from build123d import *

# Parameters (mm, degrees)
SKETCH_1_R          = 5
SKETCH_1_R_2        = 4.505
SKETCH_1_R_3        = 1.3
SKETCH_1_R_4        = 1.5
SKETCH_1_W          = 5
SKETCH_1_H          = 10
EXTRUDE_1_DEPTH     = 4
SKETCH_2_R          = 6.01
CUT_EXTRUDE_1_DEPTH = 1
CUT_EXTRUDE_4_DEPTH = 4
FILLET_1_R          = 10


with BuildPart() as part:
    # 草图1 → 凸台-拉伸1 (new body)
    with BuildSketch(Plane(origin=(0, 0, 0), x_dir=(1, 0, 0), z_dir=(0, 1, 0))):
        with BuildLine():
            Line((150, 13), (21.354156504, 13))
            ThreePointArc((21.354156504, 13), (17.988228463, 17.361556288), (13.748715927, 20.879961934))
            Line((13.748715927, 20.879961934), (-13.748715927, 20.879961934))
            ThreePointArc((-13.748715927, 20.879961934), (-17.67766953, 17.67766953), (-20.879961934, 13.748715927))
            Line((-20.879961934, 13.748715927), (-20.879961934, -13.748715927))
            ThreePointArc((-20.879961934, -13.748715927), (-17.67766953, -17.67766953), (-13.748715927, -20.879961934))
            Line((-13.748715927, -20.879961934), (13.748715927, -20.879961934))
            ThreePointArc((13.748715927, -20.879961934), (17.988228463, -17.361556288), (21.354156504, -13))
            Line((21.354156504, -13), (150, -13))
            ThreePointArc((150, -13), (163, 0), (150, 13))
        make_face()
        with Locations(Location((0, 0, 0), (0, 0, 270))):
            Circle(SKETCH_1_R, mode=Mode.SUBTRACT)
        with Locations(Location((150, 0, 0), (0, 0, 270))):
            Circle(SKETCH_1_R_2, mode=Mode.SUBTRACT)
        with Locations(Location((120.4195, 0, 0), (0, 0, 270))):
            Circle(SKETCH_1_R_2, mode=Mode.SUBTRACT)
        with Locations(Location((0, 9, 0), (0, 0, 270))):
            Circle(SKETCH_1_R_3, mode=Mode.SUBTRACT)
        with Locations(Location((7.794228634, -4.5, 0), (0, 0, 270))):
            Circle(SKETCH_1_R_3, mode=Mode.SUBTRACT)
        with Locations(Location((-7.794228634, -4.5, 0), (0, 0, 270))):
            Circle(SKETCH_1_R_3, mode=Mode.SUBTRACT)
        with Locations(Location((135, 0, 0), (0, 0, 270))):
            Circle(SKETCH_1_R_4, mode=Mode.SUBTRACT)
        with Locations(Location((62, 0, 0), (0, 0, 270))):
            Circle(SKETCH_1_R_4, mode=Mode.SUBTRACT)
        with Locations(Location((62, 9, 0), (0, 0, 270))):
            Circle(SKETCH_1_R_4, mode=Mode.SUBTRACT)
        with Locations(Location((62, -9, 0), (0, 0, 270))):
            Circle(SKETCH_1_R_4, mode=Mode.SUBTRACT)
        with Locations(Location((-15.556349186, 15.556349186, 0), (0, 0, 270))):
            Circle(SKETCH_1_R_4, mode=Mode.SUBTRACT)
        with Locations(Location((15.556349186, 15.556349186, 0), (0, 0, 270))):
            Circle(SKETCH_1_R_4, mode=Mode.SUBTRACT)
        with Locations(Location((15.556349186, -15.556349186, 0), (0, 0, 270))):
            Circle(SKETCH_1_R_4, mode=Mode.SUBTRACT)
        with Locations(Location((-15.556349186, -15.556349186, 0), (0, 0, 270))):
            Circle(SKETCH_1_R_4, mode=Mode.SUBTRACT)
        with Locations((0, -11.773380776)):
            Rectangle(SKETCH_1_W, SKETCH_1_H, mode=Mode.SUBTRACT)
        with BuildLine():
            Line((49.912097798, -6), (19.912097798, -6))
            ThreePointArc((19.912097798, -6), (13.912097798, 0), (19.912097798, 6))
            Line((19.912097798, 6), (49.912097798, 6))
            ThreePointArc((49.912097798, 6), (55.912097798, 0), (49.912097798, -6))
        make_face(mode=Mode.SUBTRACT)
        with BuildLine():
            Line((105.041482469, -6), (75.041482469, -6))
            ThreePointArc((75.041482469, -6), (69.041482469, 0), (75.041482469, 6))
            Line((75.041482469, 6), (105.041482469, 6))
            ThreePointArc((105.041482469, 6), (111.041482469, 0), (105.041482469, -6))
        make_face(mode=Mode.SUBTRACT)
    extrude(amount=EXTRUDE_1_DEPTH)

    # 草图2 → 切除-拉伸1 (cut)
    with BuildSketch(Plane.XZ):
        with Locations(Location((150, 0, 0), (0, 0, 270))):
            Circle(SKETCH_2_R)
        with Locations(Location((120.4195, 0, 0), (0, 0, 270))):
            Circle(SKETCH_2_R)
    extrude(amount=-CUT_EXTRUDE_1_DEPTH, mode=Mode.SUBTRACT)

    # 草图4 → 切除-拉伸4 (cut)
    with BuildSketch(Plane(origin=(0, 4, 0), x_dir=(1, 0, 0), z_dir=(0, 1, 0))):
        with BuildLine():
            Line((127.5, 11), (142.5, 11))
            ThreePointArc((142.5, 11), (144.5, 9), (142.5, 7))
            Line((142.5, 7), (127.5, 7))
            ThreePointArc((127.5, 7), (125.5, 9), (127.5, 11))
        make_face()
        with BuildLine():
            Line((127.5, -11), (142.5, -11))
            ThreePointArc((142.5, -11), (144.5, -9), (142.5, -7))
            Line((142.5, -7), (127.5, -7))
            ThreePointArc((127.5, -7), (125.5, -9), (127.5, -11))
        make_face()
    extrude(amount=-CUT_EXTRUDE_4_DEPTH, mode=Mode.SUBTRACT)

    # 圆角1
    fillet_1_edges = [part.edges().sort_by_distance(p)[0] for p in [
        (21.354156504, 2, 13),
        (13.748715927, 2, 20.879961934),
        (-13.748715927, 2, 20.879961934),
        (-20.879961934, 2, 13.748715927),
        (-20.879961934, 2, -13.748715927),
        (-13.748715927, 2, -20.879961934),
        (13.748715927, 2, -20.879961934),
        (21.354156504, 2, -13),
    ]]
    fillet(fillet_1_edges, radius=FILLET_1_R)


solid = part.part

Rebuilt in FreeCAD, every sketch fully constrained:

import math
import FreeCAD as App
import Part
import Sketcher
Q = App.Units.Quantity


def edges_at(feature, points):
    """Names of the edges that pass closest to the given points."""
    edges = feature.Shape.Edges
    near = lambda p: min(range(len(edges)), key=lambda i: edges[i].distToShape(Part.Vertex(*p))[0])
    return sorted({f"Edge{near(p) + 1}" for p in points})

doc = App.newDocument("Part")
body = doc.addObject("PartDesign::Body", "Body")

sketch1 = body.newObject("Sketcher::SketchObject", "Sketch")
sketch1.AttachmentSupport = (doc.getObject("XZ_Plane"), [""])
sketch1.MapMode = "FlatFace"
sketch1.addGeometry([
    Part.LineSegment(App.Vector(150, -13, 0), App.Vector(21.354157, -13, 0)),
    Part.ArcOfCircle(Part.Circle(App.Vector(0, 0, 0), App.Vector(0, 0, 1), 25), math.radians(-56.636511), math.radians(-31.332252)),
    Part.LineSegment(App.Vector(13.748716, -20.879962, 0), App.Vector(-13.748716, -20.879962, 0)),
    Part.ArcOfCircle(Part.Circle(App.Vector(0, 0, 0), App.Vector(0, 0, 1), 25), math.radians(-146.636511), math.radians(-123.363489)),
    Part.LineSegment(App.Vector(-20.879962, -13.748716, 0), App.Vector(-20.879962, 13.748716, 0)),
    Part.ArcOfCircle(Part.Circle(App.Vector(0, 0, 0), App.Vector(0, 0, 1), 25), math.radians(123.363489), math.radians(146.636511)),
    Part.LineSegment(App.Vector(-13.748716, 20.879962, 0), App.Vector(13.748716, 20.879962, 0)),
    Part.ArcOfCircle(Part.Circle(App.Vector(0, 0, 0), App.Vector(0, 0, 1), 25), math.radians(31.332252), math.radians(56.636511)),
    Part.LineSegment(App.Vector(21.354157, 13, 0), App.Vector(150, 13, 0)),
    Part.ArcOfCircle(Part.Circle(App.Vector(150, 0, 0), App.Vector(0, 0, 1), 13), math.radians(-90), math.radians(90)),
    Part.Circle(App.Vector(-15.556349, 15.556349, 0), App.Vector(0, 0, 1), 1.5),
    Part.Circle(App.Vector(15.556349, 15.556349, 0), App.Vector(0, 0, 1), 1.5),
    Part.LineSegment(App.Vector(2.5, 16.773381, 0), App.Vector(-2.5, 16.773381, 0)),
    Part.LineSegment(App.Vector(-2.5, 16.773381, 0), App.Vector(-2.5, 6.773381, 0)),
    Part.LineSegment(App.Vector(-2.5, 6.773381, 0), App.Vector(2.5, 6.773381, 0)),
    Part.LineSegment(App.Vector(2.5, 6.773381, 0), App.Vector(2.5, 16.773381, 0)),
    Part.Circle(App.Vector(62, 9, 0), App.Vector(0, 0, 1), 1.5),
    Part.Circle(App.Vector(-7.794229, 4.5, 0), App.Vector(0, 0, 1), 1.3),
    Part.Circle(App.Vector(7.794229, 4.5, 0), App.Vector(0, 0, 1), 1.3),
    Part.Circle(App.Vector(0, 0, 0), App.Vector(0, 0, 1), 5),
    Part.ArcOfCircle(Part.Circle(App.Vector(49.912098, 0, 0), App.Vector(0, 0, 1), 6), math.radians(-90), math.radians(90)),
    Part.LineSegment(App.Vector(49.912098, 6, 0), App.Vector(19.912098, 6, 0)),
    Part.ArcOfCircle(Part.Circle(App.Vector(19.912098, 0, 0), App.Vector(0, 0, 1), 6), math.radians(90), math.radians(270)),
    Part.LineSegment(App.Vector(19.912098, -6, 0), App.Vector(49.912098, -6, 0)),
    Part.Circle(App.Vector(62, 0, 0), App.Vector(0, 0, 1), 1.5),
    Part.Circle(App.Vector(0, -9, 0), App.Vector(0, 0, 1), 1.3),
    Part.Circle(App.Vector(-15.556349, -15.556349, 0), App.Vector(0, 0, 1), 1.5),
    Part.Circle(App.Vector(15.556349, -15.556349, 0), App.Vector(0, 0, 1), 1.5),
    Part.Circle(App.Vector(62, -9, 0), App.Vector(0, 0, 1), 1.5),
    Part.ArcOfCircle(Part.Circle(App.Vector(105.041482, 0, 0), App.Vector(0, 0, 1), 6), math.radians(-90), math.radians(90)),
    Part.LineSegment(App.Vector(105.041482, 6, 0), App.Vector(75.041482, 6, 0)),
    Part.ArcOfCircle(Part.Circle(App.Vector(75.041482, 0, 0), App.Vector(0, 0, 1), 6), math.radians(90), math.radians(270)),
    Part.LineSegment(App.Vector(75.041482, -6, 0), App.Vector(105.041482, -6, 0)),
    Part.Circle(App.Vector(120.4195, 0, 0), App.Vector(0, 0, 1), 4.505),
    Part.Circle(App.Vector(135, 0, 0), App.Vector(0, 0, 1), 1.5),
    Part.Circle(App.Vector(150, 0, 0), App.Vector(0, 0, 1), 4.505),
], False)
sketch1.addConstraint([
    Sketcher.Constraint("Coincident", 0, 2, 1, 2),
    Sketcher.Constraint("Coincident", 1, 1, 2, 1),
    Sketcher.Constraint("Coincident", 2, 2, 3, 2),
    Sketcher.Constraint("Coincident", 3, 1, 4, 1),
    Sketcher.Constraint("Coincident", 4, 2, 5, 2),
    Sketcher.Constraint("Coincident", 5, 1, 6, 1),
    Sketcher.Constraint("Coincident", 6, 2, 7, 2),
    Sketcher.Constraint("Coincident", 7, 1, 8, 1),
    Sketcher.Constraint("Tangent", 8, 2, 9, 2),
    Sketcher.Constraint("Tangent", 9, 1, 0, 1),
    Sketcher.Constraint("Coincident", 12, 2, 13, 1),
    Sketcher.Constraint("Coincident", 13, 2, 14, 1),
    Sketcher.Constraint("Coincident", 14, 2, 15, 1),
    Sketcher.Constraint("Coincident", 15, 2, 12, 1),
    Sketcher.Constraint("Tangent", 20, 2, 21, 1),
    Sketcher.Constraint("Tangent", 21, 2, 22, 1),
    Sketcher.Constraint("Tangent", 22, 2, 23, 1),
    Sketcher.Constraint("Tangent", 23, 2, 20, 1),
    Sketcher.Constraint("Tangent", 29, 2, 30, 1),
    Sketcher.Constraint("Tangent", 30, 2, 31, 1),
    Sketcher.Constraint("Tangent", 31, 2, 32, 1),
    Sketcher.Constraint("Tangent", 32, 2, 29, 1),
    Sketcher.Constraint("Horizontal", 0),
    Sketcher.Constraint("Horizontal", 2),
    Sketcher.Constraint("Vertical", 4),
    Sketcher.Constraint("Horizontal", 6),
    Sketcher.Constraint("Horizontal", 8),
    Sketcher.Constraint("Horizontal", 12),
    Sketcher.Constraint("Vertical", 13),
    Sketcher.Constraint("Horizontal", 14),
    Sketcher.Constraint("Vertical", 15),
    Sketcher.Constraint("Horizontal", 21),
    Sketcher.Constraint("Horizontal", 23),
    Sketcher.Constraint("Horizontal", 30),
    Sketcher.Constraint("Horizontal", 32),
    Sketcher.Constraint("Coincident", 1, 3, -1, 1),
    Sketcher.Constraint("Coincident", 3, 3, -1, 1),
    Sketcher.Constraint("Coincident", 5, 3, -1, 1),
    Sketcher.Constraint("Coincident", 7, 3, -1, 1),
    Sketcher.Constraint("Coincident", 19, 3, -1, 1),
    Sketcher.Constraint("Coincident", 35, 3, 9, 3),
    Sketcher.Constraint("Equal", 1, 3),
    Sketcher.Constraint("Equal", 3, 5),
    Sketcher.Constraint("Equal", 5, 7),
    Sketcher.Constraint("Equal", 10, 11),
    Sketcher.Constraint("Equal", 11, 16),
    Sketcher.Constraint("Equal", 17, 18),
    Sketcher.Constraint("Equal", 16, 24),
    Sketcher.Constraint("Equal", 18, 25),
    Sketcher.Constraint("Equal", 24, 26),
    Sketcher.Constraint("Equal", 26, 27),
    Sketcher.Constraint("Equal", 27, 28),
    Sketcher.Constraint("Equal", 22, 29),
    Sketcher.Constraint("Equal", 28, 34),
    Sketcher.Constraint("Equal", 33, 35),
    Sketcher.Constraint("Symmetric", 11, 3, 26, 3, -1, 1),
    Sketcher.Constraint("Symmetric", 10, 3, 27, 3, -1, 1),
    Sketcher.Constraint("Symmetric", 10, 3, 11, 3, -2),
    Sketcher.Constraint("Symmetric", 17, 3, 18, 3, -2),
    Sketcher.Constraint("Symmetric", 16, 3, 28, 3, -1),
    Sketcher.Constraint("PointOnObject", 9, 3, -1),
    Sketcher.Constraint("PointOnObject", 20, 3, -1),
    Sketcher.Constraint("PointOnObject", 24, 3, -1),
    Sketcher.Constraint("PointOnObject", 25, 3, -2),
    Sketcher.Constraint("PointOnObject", 29, 3, -1),
    Sketcher.Constraint("PointOnObject", 33, 3, -1),
    Sketcher.Constraint("PointOnObject", 34, 3, -1),
    Sketcher.Constraint("Horizontal", 25, 3, 28, 3),
    Sketcher.Constraint("Vertical", 16, 3, 24, 3),
    Sketcher.Constraint("Vertical", 2, 2, 5, 1),
    Sketcher.Constraint("Equal", 23, 30),
    Sketcher.Constraint("Equal", 6, 4),
    Sketcher.Constraint("Diameter", 10, Q("3 mm")),
    Sketcher.Constraint("Diameter", 19, Q("10 mm")),
    Sketcher.Constraint("Radius", 1, Q("25 mm")),
    Sketcher.Constraint("Radius", 9, Q("13 mm")),
    Sketcher.Constraint("Radius", 20, Q("6 mm")),
    Sketcher.Constraint("Diameter", 17, Q("2.6 mm")),
    Sketcher.Constraint("Diameter", 33, Q("9.01 mm")),
    Sketcher.Constraint("DistanceX", 12, 2, 12, 1, Q("5 mm")),
    Sketcher.Constraint("DistanceX", 21, 2, 21, 1, Q("30 mm")),
    Sketcher.Constraint("DistanceY", 13, 2, 13, 1, Q("10 mm")),
    Sketcher.Constraint("DistanceX", -1, 1, 9, 3, Q("150 mm")),
    Sketcher.Constraint("DistanceX", -1, 1, 16, 3, Q("62 mm")),
    Sketcher.Constraint("DistanceY", -1, 1, 16, 3, Q("9 mm")),
    Sketcher.Constraint("DistanceX", -1, 1, 34, 3, Q("135 mm")),
    Sketcher.Constraint("DistanceY", -1, 1, 17, 3, Q("4.5 mm")),
    Sketcher.Constraint("DistanceX", 12, 2, -1, 1, Q("2.5 mm")),
    Sketcher.Constraint("DistanceX", 2, 2, 2, 1, Q("27.497432 mm")),
    Sketcher.Constraint("DistanceX", -1, 1, 33, 3, Q("120.4195 mm")),
    Sketcher.Constraint("DistanceX", 10, 3, 11, 3, Q("31.112698 mm")),
    Sketcher.Constraint("DistanceY", -1, 1, 10, 3, Q("15.556349 mm")),
    Sketcher.Constraint("DistanceX", 17, 3, -1, 1, Q("7.794229 mm")),
    Sketcher.Constraint("DistanceY", -1, 1, 12, 2, Q("16.773381 mm")),
    Sketcher.Constraint("DistanceX", 11, 3, 20, 3, Q("34.355749 mm")),
    Sketcher.Constraint("DistanceX", -1, 1, 29, 3, Q("105.041482 mm")),
])
pad1 = body.newObject("PartDesign::Pad", "Pad")
pad1.Profile = sketch1
pad1.Length = 4
pad1.Reversed = True

sketch2 = body.newObject("Sketcher::SketchObject", "Sketch001")
sketch2.AttachmentSupport = (doc.getObject("XZ_Plane"), [""])
sketch2.MapMode = "FlatFace"
sketch2.addGeometry([
    Part.Circle(App.Vector(150, 0, 0), App.Vector(0, 0, 1), 6.01),
    Part.Circle(App.Vector(120.4195, 0, 0), App.Vector(0, 0, 1), 6.01),
], False)
sketch2.addConstraint([
    Sketcher.Constraint("Equal", 0, 1),
    Sketcher.Constraint("PointOnObject", 0, 3, -1),
    Sketcher.Constraint("PointOnObject", 1, 3, -1),
    Sketcher.Constraint("Diameter", 0, Q("12.02 mm")),
    Sketcher.Constraint("DistanceX", -1, 1, 0, 3, Q("150 mm")),
    Sketcher.Constraint("DistanceX", -1, 1, 1, 3, Q("120.4195 mm")),
])
pocket1 = body.newObject("PartDesign::Pocket", "Pocket")
pocket1.Profile = sketch2
pocket1.Length = 1

sketch3 = body.newObject("Sketcher::SketchObject", "Sketch002")
sketch3.AttachmentSupport = (doc.getObject("XZ_Plane"), [""])
sketch3.MapMode = "FlatFace"
sketch3.AttachmentOffset = App.Placement(App.Vector(0, 0, -4), App.Rotation())
sketch3.addGeometry([
    Part.LineSegment(App.Vector(142.5, -11, 0), App.Vector(127.5, -11, 0)),
    Part.ArcOfCircle(Part.Circle(App.Vector(127.5, -9, 0), App.Vector(0, 0, 1), 2), math.radians(90), math.radians(270)),
    Part.LineSegment(App.Vector(127.5, -7, 0), App.Vector(142.5, -7, 0)),
    Part.ArcOfCircle(Part.Circle(App.Vector(142.5, -9, 0), App.Vector(0, 0, 1), 2), math.radians(-90), math.radians(90)),
    Part.LineSegment(App.Vector(127.5, 11, 0), App.Vector(142.5, 11, 0)),
    Part.ArcOfCircle(Part.Circle(App.Vector(142.5, 9, 0), App.Vector(0, 0, 1), 2), math.radians(-90), math.radians(90)),
    Part.LineSegment(App.Vector(142.5, 7, 0), App.Vector(127.5, 7, 0)),
    Part.ArcOfCircle(Part.Circle(App.Vector(127.5, 9, 0), App.Vector(0, 0, 1), 2), math.radians(90), math.radians(270)),
], False)
sketch3.addConstraint([
    Sketcher.Constraint("Tangent", 0, 2, 1, 2),
    Sketcher.Constraint("Tangent", 1, 1, 2, 1),
    Sketcher.Constraint("Tangent", 2, 2, 3, 2),
    Sketcher.Constraint("Tangent", 3, 1, 0, 1),
    Sketcher.Constraint("Tangent", 4, 2, 5, 2),
    Sketcher.Constraint("Tangent", 5, 1, 6, 1),
    Sketcher.Constraint("Tangent", 6, 2, 7, 2),
    Sketcher.Constraint("Tangent", 7, 1, 4, 1),
    Sketcher.Constraint("Horizontal", 0),
    Sketcher.Constraint("Horizontal", 2),
    Sketcher.Constraint("Horizontal", 4),
    Sketcher.Constraint("Horizontal", 6),
    Sketcher.Constraint("Equal", 3, 5),
    Sketcher.Constraint("Symmetric", 3, 3, 5, 3, -1),
    Sketcher.Constraint("Vertical", 1, 3, 7, 3),
    Sketcher.Constraint("Radius", 1, Q("2 mm")),
    Sketcher.Constraint("DistanceX", 0, 2, 0, 1, Q("15 mm")),
    Sketcher.Constraint("DistanceY", 1, 3, -1, 1, Q("9 mm")),
    Sketcher.Constraint("DistanceX", -1, 1, 1, 3, Q("127.5 mm")),
])
pocket2 = body.newObject("PartDesign::Pocket", "Pocket001")
pocket2.Profile = sketch3
pocket2.Length = 4
pocket2.Reversed = True
doc.recompute()

fillet = body.newObject("PartDesign::Fillet", "Fillet")
fillet.Base = (pocket2, edges_at(pocket2, [
    (21.354, 2, 13),
    (13.749, 2, 20.88),
    (-13.749, 2, 20.88),
    (-20.88, 2, 13.749),
    (-20.88, 2, -13.749),
    (-13.749, 2, -20.88),
    (13.749, 2, -20.88),
    (21.354, 2, -13),
]))
fillet.Radius = 10

doc.recompute()
